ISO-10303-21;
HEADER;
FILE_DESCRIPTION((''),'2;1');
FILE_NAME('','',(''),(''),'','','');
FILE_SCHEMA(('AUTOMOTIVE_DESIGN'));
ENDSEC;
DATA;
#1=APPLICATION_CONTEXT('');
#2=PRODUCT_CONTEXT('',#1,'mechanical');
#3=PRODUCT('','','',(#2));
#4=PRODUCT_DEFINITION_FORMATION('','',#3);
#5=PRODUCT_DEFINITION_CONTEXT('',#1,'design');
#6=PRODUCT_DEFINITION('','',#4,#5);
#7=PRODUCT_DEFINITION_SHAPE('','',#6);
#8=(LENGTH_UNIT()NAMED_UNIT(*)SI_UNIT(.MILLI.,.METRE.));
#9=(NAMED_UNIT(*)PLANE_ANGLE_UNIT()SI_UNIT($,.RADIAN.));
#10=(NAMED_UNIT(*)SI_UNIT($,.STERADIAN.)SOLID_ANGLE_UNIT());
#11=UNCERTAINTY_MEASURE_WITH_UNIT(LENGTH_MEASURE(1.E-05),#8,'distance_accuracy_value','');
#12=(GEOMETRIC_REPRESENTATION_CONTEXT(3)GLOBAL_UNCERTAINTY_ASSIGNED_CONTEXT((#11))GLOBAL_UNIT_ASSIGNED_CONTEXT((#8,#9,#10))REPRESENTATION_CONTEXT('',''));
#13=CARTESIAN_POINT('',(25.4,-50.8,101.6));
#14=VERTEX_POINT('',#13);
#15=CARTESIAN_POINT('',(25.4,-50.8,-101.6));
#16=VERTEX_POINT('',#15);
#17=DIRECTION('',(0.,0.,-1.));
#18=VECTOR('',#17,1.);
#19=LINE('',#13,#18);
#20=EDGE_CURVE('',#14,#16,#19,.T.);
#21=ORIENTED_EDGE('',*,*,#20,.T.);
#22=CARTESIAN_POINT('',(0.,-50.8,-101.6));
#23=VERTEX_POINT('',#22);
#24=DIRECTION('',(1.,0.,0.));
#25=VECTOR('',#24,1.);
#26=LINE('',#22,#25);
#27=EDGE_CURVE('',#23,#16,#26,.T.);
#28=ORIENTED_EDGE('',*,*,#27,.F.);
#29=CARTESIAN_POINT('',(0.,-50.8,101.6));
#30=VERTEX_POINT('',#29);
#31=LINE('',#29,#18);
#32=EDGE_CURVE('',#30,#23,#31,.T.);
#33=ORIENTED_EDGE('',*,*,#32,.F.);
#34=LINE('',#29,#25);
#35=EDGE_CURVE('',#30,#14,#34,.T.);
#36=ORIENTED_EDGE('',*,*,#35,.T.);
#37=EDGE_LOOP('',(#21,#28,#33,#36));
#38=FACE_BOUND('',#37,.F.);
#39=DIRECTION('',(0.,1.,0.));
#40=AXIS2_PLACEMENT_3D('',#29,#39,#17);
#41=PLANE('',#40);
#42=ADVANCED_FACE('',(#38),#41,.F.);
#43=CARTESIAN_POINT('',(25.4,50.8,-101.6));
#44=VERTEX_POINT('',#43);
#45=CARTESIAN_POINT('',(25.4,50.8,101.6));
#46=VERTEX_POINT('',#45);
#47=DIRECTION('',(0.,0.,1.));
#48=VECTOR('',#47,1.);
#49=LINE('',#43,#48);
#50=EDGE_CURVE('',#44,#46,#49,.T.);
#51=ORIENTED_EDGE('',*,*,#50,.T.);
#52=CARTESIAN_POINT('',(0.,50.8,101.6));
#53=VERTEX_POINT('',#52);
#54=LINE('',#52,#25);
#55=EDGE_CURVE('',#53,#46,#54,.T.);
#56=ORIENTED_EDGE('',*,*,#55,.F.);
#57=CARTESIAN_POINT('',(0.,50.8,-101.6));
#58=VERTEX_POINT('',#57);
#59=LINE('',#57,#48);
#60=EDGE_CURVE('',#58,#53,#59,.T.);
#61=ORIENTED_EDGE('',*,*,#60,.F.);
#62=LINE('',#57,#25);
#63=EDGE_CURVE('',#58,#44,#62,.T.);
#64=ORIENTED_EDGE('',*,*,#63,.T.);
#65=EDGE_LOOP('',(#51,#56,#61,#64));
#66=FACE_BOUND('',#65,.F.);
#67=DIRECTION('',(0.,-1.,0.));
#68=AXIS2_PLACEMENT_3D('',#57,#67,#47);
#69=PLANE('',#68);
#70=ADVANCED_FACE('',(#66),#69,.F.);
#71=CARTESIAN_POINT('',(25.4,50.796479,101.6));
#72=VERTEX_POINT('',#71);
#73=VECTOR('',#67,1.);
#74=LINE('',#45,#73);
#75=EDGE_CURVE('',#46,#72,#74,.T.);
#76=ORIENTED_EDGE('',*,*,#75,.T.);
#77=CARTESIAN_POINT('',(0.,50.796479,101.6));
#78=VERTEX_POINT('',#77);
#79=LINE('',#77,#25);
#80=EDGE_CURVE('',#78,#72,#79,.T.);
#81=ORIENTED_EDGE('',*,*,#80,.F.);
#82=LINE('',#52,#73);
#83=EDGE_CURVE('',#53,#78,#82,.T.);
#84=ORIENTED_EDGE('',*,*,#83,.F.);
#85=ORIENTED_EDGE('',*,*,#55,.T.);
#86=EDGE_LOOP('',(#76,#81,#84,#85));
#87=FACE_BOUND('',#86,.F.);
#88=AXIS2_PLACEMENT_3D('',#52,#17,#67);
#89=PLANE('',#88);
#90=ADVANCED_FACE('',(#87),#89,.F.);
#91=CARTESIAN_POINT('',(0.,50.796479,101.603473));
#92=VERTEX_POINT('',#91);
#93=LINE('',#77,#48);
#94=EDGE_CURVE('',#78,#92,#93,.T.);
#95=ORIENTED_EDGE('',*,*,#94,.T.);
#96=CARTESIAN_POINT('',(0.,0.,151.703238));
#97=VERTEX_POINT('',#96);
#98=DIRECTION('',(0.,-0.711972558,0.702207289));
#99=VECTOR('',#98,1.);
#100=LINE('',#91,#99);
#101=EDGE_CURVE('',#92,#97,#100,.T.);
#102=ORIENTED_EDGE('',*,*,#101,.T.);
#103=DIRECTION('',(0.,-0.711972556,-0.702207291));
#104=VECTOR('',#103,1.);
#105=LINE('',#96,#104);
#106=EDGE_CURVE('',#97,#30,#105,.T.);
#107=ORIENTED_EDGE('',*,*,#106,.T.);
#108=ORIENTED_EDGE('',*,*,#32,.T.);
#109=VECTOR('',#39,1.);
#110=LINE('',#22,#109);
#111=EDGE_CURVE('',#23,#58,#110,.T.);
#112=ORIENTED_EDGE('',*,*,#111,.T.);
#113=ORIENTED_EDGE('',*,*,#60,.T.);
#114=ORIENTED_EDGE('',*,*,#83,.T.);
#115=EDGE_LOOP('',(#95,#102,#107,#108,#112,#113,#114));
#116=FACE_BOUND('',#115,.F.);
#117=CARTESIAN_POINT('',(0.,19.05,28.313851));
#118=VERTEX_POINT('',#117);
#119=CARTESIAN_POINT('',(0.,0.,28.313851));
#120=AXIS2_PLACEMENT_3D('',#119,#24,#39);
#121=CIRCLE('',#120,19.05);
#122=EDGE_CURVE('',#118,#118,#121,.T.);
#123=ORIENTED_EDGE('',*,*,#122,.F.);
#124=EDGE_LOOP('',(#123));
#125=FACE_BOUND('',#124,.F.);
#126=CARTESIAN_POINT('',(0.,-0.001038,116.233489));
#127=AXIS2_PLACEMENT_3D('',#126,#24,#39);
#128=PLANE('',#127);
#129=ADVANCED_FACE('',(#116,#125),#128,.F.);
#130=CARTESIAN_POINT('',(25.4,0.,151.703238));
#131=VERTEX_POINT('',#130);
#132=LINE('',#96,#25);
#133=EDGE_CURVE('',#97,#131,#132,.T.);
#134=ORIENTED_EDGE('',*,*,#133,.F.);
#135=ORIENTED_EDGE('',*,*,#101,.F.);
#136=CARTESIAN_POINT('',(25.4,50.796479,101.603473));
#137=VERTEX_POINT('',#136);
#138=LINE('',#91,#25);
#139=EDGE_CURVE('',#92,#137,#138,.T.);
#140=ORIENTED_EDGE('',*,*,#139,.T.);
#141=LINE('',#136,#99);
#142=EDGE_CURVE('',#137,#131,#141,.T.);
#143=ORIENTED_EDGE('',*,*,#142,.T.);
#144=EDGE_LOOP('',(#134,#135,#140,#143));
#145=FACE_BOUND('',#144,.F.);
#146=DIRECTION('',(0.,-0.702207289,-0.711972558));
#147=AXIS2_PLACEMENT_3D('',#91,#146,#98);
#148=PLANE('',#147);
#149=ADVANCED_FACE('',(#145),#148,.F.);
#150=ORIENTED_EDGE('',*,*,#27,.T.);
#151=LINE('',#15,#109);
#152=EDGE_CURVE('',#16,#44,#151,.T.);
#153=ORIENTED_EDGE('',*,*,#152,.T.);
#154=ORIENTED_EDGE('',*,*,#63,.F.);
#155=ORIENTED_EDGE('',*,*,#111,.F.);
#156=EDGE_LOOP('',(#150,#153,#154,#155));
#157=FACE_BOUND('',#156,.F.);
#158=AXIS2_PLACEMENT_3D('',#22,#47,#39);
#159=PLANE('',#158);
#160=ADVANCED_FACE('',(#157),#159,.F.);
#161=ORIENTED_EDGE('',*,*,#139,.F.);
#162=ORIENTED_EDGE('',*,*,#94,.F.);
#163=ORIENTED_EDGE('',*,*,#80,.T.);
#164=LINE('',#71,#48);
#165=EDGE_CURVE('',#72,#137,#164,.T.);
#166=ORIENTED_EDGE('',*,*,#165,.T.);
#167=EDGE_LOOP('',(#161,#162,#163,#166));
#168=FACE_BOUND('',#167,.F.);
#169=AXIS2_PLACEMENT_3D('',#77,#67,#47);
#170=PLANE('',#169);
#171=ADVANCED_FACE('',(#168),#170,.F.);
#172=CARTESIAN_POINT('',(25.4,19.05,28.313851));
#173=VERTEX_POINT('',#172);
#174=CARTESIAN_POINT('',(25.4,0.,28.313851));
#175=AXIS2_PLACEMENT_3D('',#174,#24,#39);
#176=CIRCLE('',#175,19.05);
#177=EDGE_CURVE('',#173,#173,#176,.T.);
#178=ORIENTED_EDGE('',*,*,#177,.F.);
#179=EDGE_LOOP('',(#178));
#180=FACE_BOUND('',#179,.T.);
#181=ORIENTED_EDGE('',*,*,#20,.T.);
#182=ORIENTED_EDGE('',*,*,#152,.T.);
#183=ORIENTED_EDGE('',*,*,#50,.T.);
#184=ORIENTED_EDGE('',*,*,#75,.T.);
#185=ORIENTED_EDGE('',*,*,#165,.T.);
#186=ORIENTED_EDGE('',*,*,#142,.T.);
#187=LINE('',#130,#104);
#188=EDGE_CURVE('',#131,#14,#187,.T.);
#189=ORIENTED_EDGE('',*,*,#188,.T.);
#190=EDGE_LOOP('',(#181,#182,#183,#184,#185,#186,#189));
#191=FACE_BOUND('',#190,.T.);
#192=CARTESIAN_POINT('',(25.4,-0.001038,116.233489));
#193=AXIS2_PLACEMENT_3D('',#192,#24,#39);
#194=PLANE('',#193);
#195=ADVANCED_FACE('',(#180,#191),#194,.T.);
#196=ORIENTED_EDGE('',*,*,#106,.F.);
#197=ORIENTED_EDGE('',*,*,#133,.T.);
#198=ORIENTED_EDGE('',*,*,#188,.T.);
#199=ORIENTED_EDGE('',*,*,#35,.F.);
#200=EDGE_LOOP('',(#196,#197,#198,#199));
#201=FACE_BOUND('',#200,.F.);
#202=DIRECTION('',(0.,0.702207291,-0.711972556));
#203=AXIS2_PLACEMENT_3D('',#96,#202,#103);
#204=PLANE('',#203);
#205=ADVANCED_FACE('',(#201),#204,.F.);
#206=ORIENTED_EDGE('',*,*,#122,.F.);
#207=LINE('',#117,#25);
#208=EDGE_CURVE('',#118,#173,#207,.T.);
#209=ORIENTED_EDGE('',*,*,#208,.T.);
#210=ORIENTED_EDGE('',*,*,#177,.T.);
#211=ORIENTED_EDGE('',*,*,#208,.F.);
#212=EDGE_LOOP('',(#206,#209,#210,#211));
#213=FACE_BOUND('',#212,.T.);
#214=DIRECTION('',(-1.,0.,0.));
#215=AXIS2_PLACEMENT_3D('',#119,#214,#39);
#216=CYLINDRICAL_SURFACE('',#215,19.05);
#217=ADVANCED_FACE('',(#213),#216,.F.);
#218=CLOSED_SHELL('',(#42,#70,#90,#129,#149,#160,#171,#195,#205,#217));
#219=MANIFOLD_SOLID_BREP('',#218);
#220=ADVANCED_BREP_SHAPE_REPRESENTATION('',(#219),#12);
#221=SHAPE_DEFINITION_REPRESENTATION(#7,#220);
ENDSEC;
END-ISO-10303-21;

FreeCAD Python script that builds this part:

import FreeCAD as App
import Part
import Sketcher

V = App.Vector
Q = App.Units.Quantity


def add_polygon(sketch, points):
    """Adds a closed chain of lines whose ends are joined by coincident constraints."""
    first, n = sketch.GeometryCount, len(points)
    for a, b in zip(points, points[1:] + points[:1]):
        sketch.addGeometry(Part.LineSegment(App.Vector(*a, 0), App.Vector(*b, 0)), False)
    for i in range(n):
        sketch.addConstraint(Sketcher.Constraint("Coincident", first + i, 2, first + (i + 1) % n, 1))

doc = App.newDocument("Part")
body = doc.addObject("PartDesign::Body", "Body")

sketch1 = doc.addObject("Sketcher::SketchObject", "Sketch")
body.addObject(sketch1)
sketch1.AttachmentSupport = (doc.YZ_Plane, [""])
sketch1.MapMode = "FlatFace"
add_polygon(sketch1, [(0, 151.703238), (-50.8, 101.6), (-50.8, -101.6), (50.8, -101.6), (50.8, 101.6), (50.796479, 101.6), (50.796479, 101.603473)])
sketch1.addGeometry(Part.Circle(V(0, 28.313851, 0), V(0, 0, 1), 19.05), False)
sketch1.addConstraint([
    Sketcher.Constraint("Vertical", 1),
    Sketcher.Constraint("Horizontal", 2),
    Sketcher.Constraint("Vertical", 3),
    Sketcher.Constraint("Horizontal", 4),
    Sketcher.Constraint("Vertical", 5),
    Sketcher.Constraint("Symmetric", 0, 2, 2, 2, -1, 1),
    Sketcher.Constraint("PointOnObject", 7, 3, -2),
    Sketcher.Constraint("PointOnObject", 6, 2, -2),
    Sketcher.Constraint("Horizontal", 0, 2, 3, 2),
    Sketcher.Constraint("Diameter", 7, Q("1.5 in")),
    Sketcher.Constraint("DistanceX", 2, 1, 2, 2, Q("4 in")),
    Sketcher.Constraint("DistanceY", 1, 2, 1, 1, Q("8 in")),
    Sketcher.Constraint("DistanceX", 4, 2, 4, 1, 0.003521),
    Sketcher.Constraint("Distance", 6, 71.346119),
    Sketcher.Constraint("DistanceY", 5, 1, 5, 2, 0.003473),
    Sketcher.Constraint("DistanceY", -1, 1, 7, 3, 28.313851),
])
pad1 = doc.addObject("PartDesign::Pad", "Pad")
body.addObject(pad1)
pad1.Profile = sketch1
pad1.Length = Q("1 in")

doc.recompute()
